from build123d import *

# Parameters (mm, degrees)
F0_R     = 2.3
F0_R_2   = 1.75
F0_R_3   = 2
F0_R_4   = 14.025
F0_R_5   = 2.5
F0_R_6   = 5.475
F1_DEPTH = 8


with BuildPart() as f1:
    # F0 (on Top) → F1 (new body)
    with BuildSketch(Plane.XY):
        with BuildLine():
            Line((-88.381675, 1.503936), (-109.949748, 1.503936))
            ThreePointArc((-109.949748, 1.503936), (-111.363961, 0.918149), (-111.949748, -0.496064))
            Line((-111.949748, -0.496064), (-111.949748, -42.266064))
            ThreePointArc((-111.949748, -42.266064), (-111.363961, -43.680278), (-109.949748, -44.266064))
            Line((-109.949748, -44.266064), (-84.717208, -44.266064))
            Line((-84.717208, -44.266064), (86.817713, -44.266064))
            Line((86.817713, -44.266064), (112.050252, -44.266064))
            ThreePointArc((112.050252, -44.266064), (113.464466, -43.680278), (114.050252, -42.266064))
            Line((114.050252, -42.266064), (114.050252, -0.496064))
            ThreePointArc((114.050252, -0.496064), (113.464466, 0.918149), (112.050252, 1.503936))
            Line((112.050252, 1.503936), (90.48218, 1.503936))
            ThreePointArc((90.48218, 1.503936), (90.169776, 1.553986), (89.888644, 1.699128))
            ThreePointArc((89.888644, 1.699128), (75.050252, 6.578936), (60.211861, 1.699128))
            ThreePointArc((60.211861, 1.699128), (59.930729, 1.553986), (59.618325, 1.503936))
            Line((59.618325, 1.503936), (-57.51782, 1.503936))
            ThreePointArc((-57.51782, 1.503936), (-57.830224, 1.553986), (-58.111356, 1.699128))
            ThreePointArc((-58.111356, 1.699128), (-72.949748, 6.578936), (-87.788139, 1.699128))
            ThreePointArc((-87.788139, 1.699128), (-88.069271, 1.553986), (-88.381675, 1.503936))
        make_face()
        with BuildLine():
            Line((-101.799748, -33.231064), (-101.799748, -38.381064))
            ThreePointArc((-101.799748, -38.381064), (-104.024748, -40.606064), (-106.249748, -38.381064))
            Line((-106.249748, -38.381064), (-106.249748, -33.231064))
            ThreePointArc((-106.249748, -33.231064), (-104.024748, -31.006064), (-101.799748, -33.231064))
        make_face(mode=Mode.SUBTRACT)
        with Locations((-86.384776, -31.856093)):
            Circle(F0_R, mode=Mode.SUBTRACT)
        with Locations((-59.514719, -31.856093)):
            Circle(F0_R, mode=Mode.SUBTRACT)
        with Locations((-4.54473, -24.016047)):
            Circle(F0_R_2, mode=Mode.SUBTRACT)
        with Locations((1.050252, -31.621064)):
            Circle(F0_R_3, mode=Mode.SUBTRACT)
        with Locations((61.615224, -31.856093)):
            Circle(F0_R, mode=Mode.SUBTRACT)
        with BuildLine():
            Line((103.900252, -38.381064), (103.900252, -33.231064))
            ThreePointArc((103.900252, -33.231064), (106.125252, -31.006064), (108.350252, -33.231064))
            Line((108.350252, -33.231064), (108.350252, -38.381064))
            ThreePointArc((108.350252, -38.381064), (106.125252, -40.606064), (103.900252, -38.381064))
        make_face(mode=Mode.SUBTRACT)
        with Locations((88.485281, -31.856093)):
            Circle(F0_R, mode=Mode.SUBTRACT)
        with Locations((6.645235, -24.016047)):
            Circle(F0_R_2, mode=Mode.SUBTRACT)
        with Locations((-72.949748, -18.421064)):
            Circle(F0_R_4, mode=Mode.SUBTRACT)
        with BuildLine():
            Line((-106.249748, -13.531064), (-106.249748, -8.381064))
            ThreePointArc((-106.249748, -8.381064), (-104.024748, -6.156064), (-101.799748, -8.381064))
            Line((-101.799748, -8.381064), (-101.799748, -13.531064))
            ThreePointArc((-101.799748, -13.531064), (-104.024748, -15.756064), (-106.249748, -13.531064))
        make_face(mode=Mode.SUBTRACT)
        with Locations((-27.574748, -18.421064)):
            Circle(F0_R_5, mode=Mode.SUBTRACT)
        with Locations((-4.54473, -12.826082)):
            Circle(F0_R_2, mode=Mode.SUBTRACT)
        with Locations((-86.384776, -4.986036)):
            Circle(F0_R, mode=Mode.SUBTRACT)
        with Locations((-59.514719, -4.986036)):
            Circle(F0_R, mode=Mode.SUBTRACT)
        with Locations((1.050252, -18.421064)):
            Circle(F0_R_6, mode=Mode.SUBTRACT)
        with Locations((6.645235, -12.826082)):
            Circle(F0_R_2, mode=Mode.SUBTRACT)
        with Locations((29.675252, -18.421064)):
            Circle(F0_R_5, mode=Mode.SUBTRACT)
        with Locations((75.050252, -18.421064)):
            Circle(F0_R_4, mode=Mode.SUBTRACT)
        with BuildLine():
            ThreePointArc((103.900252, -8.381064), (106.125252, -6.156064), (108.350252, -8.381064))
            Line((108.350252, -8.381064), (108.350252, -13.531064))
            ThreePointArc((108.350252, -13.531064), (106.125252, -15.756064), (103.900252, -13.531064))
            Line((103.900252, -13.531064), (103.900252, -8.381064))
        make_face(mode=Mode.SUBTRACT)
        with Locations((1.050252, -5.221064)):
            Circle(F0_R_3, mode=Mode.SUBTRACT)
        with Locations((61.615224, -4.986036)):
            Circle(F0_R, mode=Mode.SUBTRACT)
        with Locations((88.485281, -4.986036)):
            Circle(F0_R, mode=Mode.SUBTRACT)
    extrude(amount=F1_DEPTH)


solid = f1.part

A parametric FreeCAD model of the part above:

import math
import FreeCAD as App
import Part
import Sketcher
from FreeCAD import Vector

doc = App.newDocument("Part")
params = doc.addObject("Spreadsheet::Sheet", "Params")
for row, (alias, value) in enumerate([
    ("sketch1_diameter", "4 mm"),
    ("sketch1_diameter2", "5 mm"),
    ("sketch1_radius", "24.999999 mm"),
    ("sketch1_diameter3", "4.6 mm"),
    ("sketch1_diameter4", "3.5 mm"),
    ("pad1_length", "8 mm"),
], start=1):
    params.set(f"A{row}", alias)
    params.set(f"B{row}", "=" + value)
    params.setAlias(f"B{row}", alias)

body = doc.addObject("PartDesign::Body", "Body")

sketch1 = body.newObject("Sketcher::SketchObject", "Sketch")
sketch1.AttachmentSupport = (doc.getObject("XY_Plane"), [""])
sketch1.MapMode = "FlatFace"
sketch1.addGeometry([
    Part.LineSegment(Vector(-88.4, 1.5, 0), Vector(-109.9, 1.5, 0)),
    Part.ArcOfCircle(Part.Circle(Vector(-109.9, -0.5, 0), Vector(0, 0, 1), 2), math.radians(90), math.radians(180)),
    Part.LineSegment(Vector(-111.9, -0.5, 0), Vector(-111.9, -42.3, 0)),
    Part.ArcOfCircle(Part.Circle(Vector(-109.9, -42.3, 0), Vector(0, 0, 1), 2), math.radians(-180), math.radians(-90)),
    Part.LineSegment(Vector(-109.9, -44.3, 0), Vector(112.1, -44.3, 0)),
    Part.ArcOfCircle(Part.Circle(Vector(112.1, -42.3, 0), Vector(0, 0, 1), 2), math.radians(-90), math.radians(0)),
    Part.LineSegment(Vector(114.1, -42.3, 0), Vector(114.1, -0.5, 0)),
    Part.ArcOfCircle(Part.Circle(Vector(112.1, -0.5, 0), Vector(0, 0, 1), 2), math.radians(0), math.radians(90)),
    Part.LineSegment(Vector(112.1, 1.5, 0), Vector(90.5, 1.5, 0)),
    Part.ArcOfCircle(Part.Circle(Vector(90.5, 2.5, 0), Vector(0, 0, 1), 1), math.radians(-126), math.radians(-90)),
    Part.ArcOfCircle(Part.Circle(Vector(75.1, -18.4, 0), Vector(0, 0, 1), 25), math.radians(54), math.radians(126)),
    Part.ArcOfCircle(Part.Circle(Vector(59.6, 2.5, 0), Vector(0, 0, 1), 1), math.radians(-90), math.radians(-54)),
    Part.LineSegment(Vector(59.6, 1.5, 0), Vector(-57.5, 1.5, 0)),
    Part.ArcOfCircle(Part.Circle(Vector(-57.5, 2.5, 0), Vector(0, 0, 1), 1), math.radians(-126), math.radians(-90)),
    Part.ArcOfCircle(Part.Circle(Vector(-72.9, -18.4, 0), Vector(0, 0, 1), 25), math.radians(54), math.radians(126)),
    Part.ArcOfCircle(Part.Circle(Vector(-88.4, 2.5, 0), Vector(0, 0, 1), 1), math.radians(-90), math.radians(-54)),
    Part.ArcOfCircle(Part.Circle(Vector(-104, -33.2, 0), Vector(0, 0, 1), 2.2), math.radians(0), math.radians(180)),
    Part.LineSegment(Vector(-101.8, -33.2, 0), Vector(-101.8, -38.4, 0)),
    Part.ArcOfCircle(Part.Circle(Vector(-104, -38.4, 0), Vector(0, 0, 1), 2.2), math.radians(180), math.radians(360)),
    Part.LineSegment(Vector(-106.2, -38.4, 0), Vector(-106.2, -33.2, 0)),
    Part.Circle(Vector(-86.4, -31.9, 0), Vector(0, 0, 1), 2.3),
    Part.Circle(Vector(-59.5, -31.9, 0), Vector(0, 0, 1), 2.3),
    Part.Circle(Vector(-4.5, -24, 0), Vector(0, 0, 1), 1.8),
    Part.Circle(Vector(1.1, -31.6, 0), Vector(0, 0, 1), 2),
    Part.Circle(Vector(61.6, -31.9, 0), Vector(0, 0, 1), 2.3),
    Part.ArcOfCircle(Part.Circle(Vector(106.1, -38.4, 0), Vector(0, 0, 1), 2.2), math.radians(180), math.radians(360)),
    Part.LineSegment(Vector(103.9, -38.4, 0), Vector(103.9, -33.2, 0)),
    Part.ArcOfCircle(Part.Circle(Vector(106.1, -33.2, 0), Vector(0, 0, 1), 2.2), math.radians(0), math.radians(180)),
    Part.LineSegment(Vector(108.4, -33.2, 0), Vector(108.4, -38.4, 0)),
    Part.Circle(Vector(88.5, -31.9, 0), Vector(0, 0, 1), 2.3),
    Part.Circle(Vector(6.6, -24, 0), Vector(0, 0, 1), 1.8),
    Part.Circle(Vector(-72.9, -18.4, 0), Vector(0, 0, 1), 14),
    Part.Circle(Vector(-27.6, -18.4, 0), Vector(0, 0, 1), 2.5),
    Part.Circle(Vector(-4.5, -12.8, 0), Vector(0, 0, 1), 1.8),
    Part.ArcOfCircle(Part.Circle(Vector(-104, -13.5, 0), Vector(0, 0, 1), 2.2), math.radians(180), math.radians(360)),
    Part.LineSegment(Vector(-106.2, -13.5, 0), Vector(-106.2, -8.4, 0)),
    Part.ArcOfCircle(Part.Circle(Vector(-104, -8.4, 0), Vector(0, 0, 1), 2.2), math.radians(0), math.radians(180)),
    Part.LineSegment(Vector(-101.8, -8.4, 0), Vector(-101.8, -13.5, 0)),
    Part.Circle(Vector(-86.4, -5, 0), Vector(0, 0, 1), 2.3),
    Part.Circle(Vector(-59.5, -5, 0), Vector(0, 0, 1), 2.3),
    Part.Circle(Vector(1.1, -18.4, 0), Vector(0, 0, 1), 5.5),
    Part.Circle(Vector(29.7, -18.4, 0), Vector(0, 0, 1), 2.5),
    Part.Circle(Vector(6.6, -12.8, 0), Vector(0, 0, 1), 1.8),
    Part.Circle(Vector(75.1, -18.4, 0), Vector(0, 0, 1), 14),
    Part.Circle(Vector(1.1, -5.2, 0), Vector(0, 0, 1), 2),
    Part.LineSegment(Vector(103.9, -13.5, 0), Vector(103.9, -8.4, 0)),
    Part.ArcOfCircle(Part.Circle(Vector(106.1, -8.4, 0), Vector(0, 0, 1), 2.2), math.radians(0), math.radians(180)),
    Part.LineSegment(Vector(108.4, -8.4, 0), Vector(108.4, -13.5, 0)),
    Part.ArcOfCircle(Part.Circle(Vector(106.1, -13.5, 0), Vector(0, 0, 1), 2.2), math.radians(180), math.radians(360)),
    Part.Circle(Vector(61.6, -5, 0), Vector(0, 0, 1), 2.3),
    Part.Circle(Vector(88.5, -5, 0), Vector(0, 0, 1), 2.3),
], False)
sketch1.addConstraint([
    Sketcher.Constraint("Tangent", 0, 2, 1, 1),
    Sketcher.Constraint("Tangent", 1, 2, 2, 1),
    Sketcher.Constraint("Tangent", 2, 2, 3, 1),
    Sketcher.Constraint("Tangent", 3, 2, 4, 1),
    Sketcher.Constraint("Tangent", 4, 2, 5, 1),
    Sketcher.Constraint("Tangent", 5, 2, 6, 1),
    Sketcher.Constraint("Tangent", 6, 2, 7, 1),
    Sketcher.Constraint("Tangent", 7, 2, 8, 1),
    Sketcher.Constraint("Coincident", 8, 2, 9, 2),
    Sketcher.Constraint("Tangent", 9, 1, 10, 1),
    Sketcher.Constraint("Tangent", 10, 2, 11, 2),
    Sketcher.Constraint("Coincident", 11, 1, 12, 1),
    Sketcher.Constraint("Coincident", 12, 2, 13, 2),
    Sketcher.Constraint("Tangent", 13, 1, 14, 1),
    Sketcher.Constraint("Tangent", 14, 2, 15, 2),
    Sketcher.Constraint("Coincident", 15, 1, 0, 1),
    Sketcher.Constraint("Tangent", 16, 1, 17, 1),
    Sketcher.Constraint("Tangent", 17, 2, 18, 2),
    Sketcher.Constraint("Tangent", 18, 1, 19, 1),
    Sketcher.Constraint("Tangent", 19, 2, 16, 2),
    Sketcher.Constraint("Tangent", 25, 1, 26, 1),
    Sketcher.Constraint("Tangent", 26, 2, 27, 2),
    Sketcher.Constraint("Tangent", 27, 1, 28, 1),
    Sketcher.Constraint("Tangent", 28, 2, 25, 2),
    Sketcher.Constraint("Tangent", 34, 1, 35, 1),
    Sketcher.Constraint("Tangent", 35, 2, 36, 2),
    Sketcher.Constraint("Tangent", 36, 1, 37, 1),
    Sketcher.Constraint("Tangent", 37, 2, 34, 2),
    Sketcher.Constraint("Tangent", 45, 2, 46, 2),
    Sketcher.Constraint("Tangent", 46, 1, 47, 1),
    Sketcher.Constraint("Tangent", 47, 2, 48, 2),
    Sketcher.Constraint("Tangent", 48, 1, 45, 1),
    Sketcher.Constraint("Horizontal", 0),
    Sketcher.Constraint("Vertical", 2),
    Sketcher.Constraint("Horizontal", 4),
    Sketcher.Constraint("Vertical", 6),
    Sketcher.Constraint("Horizontal", 8),
    Sketcher.Constraint("Horizontal", 12),
    Sketcher.Constraint("Vertical", 17),
    Sketcher.Constraint("Vertical", 19),
    Sketcher.Constraint("Vertical", 26),
    Sketcher.Constraint("Vertical", 28),
    Sketcher.Constraint("Vertical", 35),
    Sketcher.Constraint("Vertical", 37),
    Sketcher.Constraint("Vertical", 45),
    Sketcher.Constraint("Vertical", 47),
    Sketcher.Constraint("Coincident", 31, 3, 14, 3),
    Sketcher.Constraint("Coincident", 43, 3, 10, 3),
    Sketcher.Constraint("Equal", 1, 3),
    Sketcher.Constraint("Equal", 3, 5),
    Sketcher.Constraint("Equal", 5, 7),
    Sketcher.Constraint("Equal", 9, 11),
    Sketcher.Constraint("Equal", 11, 13),
    Sketcher.Constraint("Equal", 10, 14),
    Sketcher.Constraint("Equal", 13, 15),
    Sketcher.Constraint("Equal", 20, 21),
    Sketcher.Constraint("Equal", 7, 23),
    Sketcher.Constraint("Equal", 21, 24),
    Sketcher.Constraint("Equal", 18, 25),
    Sketcher.Constraint("Equal", 24, 29),
    Sketcher.Constraint("Equal", 22, 30),
    Sketcher.Constraint("Equal", 30, 33),
    Sketcher.Constraint("Equal", 27, 34),
    Sketcher.Constraint("Equal", 29, 38),
    Sketcher.Constraint("Equal", 38, 39),
    Sketcher.Constraint("Equal", 32, 41),
    Sketcher.Constraint("Equal", 33, 42),
    Sketcher.Constraint("Equal", 31, 43),
    Sketcher.Constraint("Equal", 23, 44),
    Sketcher.Constraint("Equal", 36, 46),
    Sketcher.Constraint("Equal", 39, 49),
    Sketcher.Constraint("Equal", 49, 50),
    Sketcher.Constraint("Horizontal", 1, 3, 7, 3),
    Sketcher.Constraint("Horizontal", 9, 3, 11, 3),
    Sketcher.Constraint("Horizontal", 10, 3, 14, 3),
    Sketcher.Constraint("Horizontal", 20, 3, 21, 3),
    Sketcher.Constraint("Horizontal", 21, 3, 24, 3),
    Sketcher.Constraint("Horizontal", 18, 3, 25, 3),
    Sketcher.Constraint("Horizontal", 16, 3, 27, 3),
    Sketcher.Constraint("Horizontal", 24, 3, 29, 3),
    Sketcher.Constraint("Horizontal", 22, 3, 30, 3),
    Sketcher.Constraint("Horizontal", 31, 3, 32, 3),
    Sketcher.Constraint("Horizontal", 38, 3, 39, 3),
    Sketcher.Constraint("Horizontal", 32, 3, 40, 3),
    Sketcher.Constraint("Horizontal", 40, 3, 41, 3),
    Sketcher.Constraint("Horizontal", 33, 3, 42, 3),
    Sketcher.Constraint("Horizontal", 36, 3, 46, 3),
    Sketcher.Constraint("Horizontal", 34, 3, 48, 3),
    Sketcher.Constraint("Horizontal", 39, 3, 49, 3),
    Sketcher.Constraint("Horizontal", 49, 3, 50, 3),
    Sketcher.Constraint("Vertical", 22, 3, 33, 3),
    Sketcher.Constraint("Vertical", 18, 3, 34, 3),
    Sketcher.Constraint("Vertical", 20, 3, 38, 3),
    Sketcher.Constraint("Vertical", 21, 3, 39, 3),
    Sketcher.Constraint("Vertical", 23, 3, 40, 3),
    Sketcher.Constraint("Vertical", 30, 3, 42, 3),
    Sketcher.Constraint("Vertical", 40, 3, 44, 3),
    Sketcher.Constraint("Vertical", 27, 3, 46, 3),
    Sketcher.Constraint("Vertical", 24, 3, 49, 3),
    Sketcher.Constraint("Vertical", 29, 3, 50, 3),
    Sketcher.Constraint("Equal", 0, 8),
    Sketcher.Constraint("Equal", 28, 35),
    Sketcher.Constraint("Diameter", 23, 4.0),
    Sketcher.Constraint("Diameter", 32, 5.0),
    Sketcher.Constraint("Radius", 10, 24.999999),
    Sketcher.Constraint("Diameter", 20, 4.6),
    Sketcher.Constraint("Diameter", 22, 3.5),
    Sketcher.Constraint("Diameter", 31, 28.05),
    Sketcher.Constraint("Diameter", 40, 10.95),
    Sketcher.Constraint("DistanceX", 4, 1, 4, 2, 222.0),
    Sketcher.Constraint("Radius", 16, 2.225),
    Sketcher.Constraint("DistanceY", 2, 2, 2, 1, 41.77),
    Sketcher.Constraint("DistanceY", 17, 2, 17, 1, 5.15),
    Sketcher.Constraint("Radius", 9, 0.999993),
    Sketcher.Constraint("DistanceX", 0, 2, 0, 1, 21.568073),
    Sketcher.Constraint("DistanceX", 12, 2, 12, 1, 117.136145),
    Sketcher.Constraint("DistanceX", -1, 1, 7, 3, 112.050252),
    Sketcher.Constraint("DistanceY", -1, 1, 9, 3, 2.503929),
    Sketcher.Constraint("DistanceX", -1, 1, 11, 3, 59.618328),
    Sketcher.Constraint("DistanceX", 15, 3, -1, 1, 88.381672),
    Sketcher.Constraint("DistanceX", 16, 3, -1, 1, 104.024748),
    Sketcher.Constraint("DistanceX", 21, 3, -1, 1, 59.514719),
    Sketcher.Constraint("DistanceX", 22, 3, -1, 1, 4.54473),
    Sketcher.Constraint("DistanceX", -1, 1, 29, 3, 88.485281),
    Sketcher.Constraint("DistanceX", 31, 3, -1, 1, 72.949748),
    Sketcher.Constraint("DistanceX", 12, 2, -1, 1, 57.51782),
    Sketcher.Constraint("DistanceX", -1, 1, 26, 2, 103.900252),
    Sketcher.Constraint("DistanceY", 16, 3, -1, 1, 33.231064),
    Sketcher.Constraint("DistanceX", 20, 3, -1, 1, 86.384776),
    Sketcher.Constraint("DistanceY", 20, 3, -1, 1, 31.856093),
    Sketcher.Constraint("DistanceY", 22, 3, -1, 1, 24.016047),
    Sketcher.Constraint("DistanceX", -1, 1, 23, 3, 1.050252),
    Sketcher.Constraint("DistanceY", 23, 3, -1, 1, 31.621064),
    Sketcher.Constraint("DistanceX", -1, 1, 24, 3, 61.615224),
    Sketcher.Constraint("DistanceX", -1, 1, 30, 3, 6.645235),
    Sketcher.Constraint("DistanceX", 32, 3, -1, 1, 27.574748),
    Sketcher.Constraint("DistanceY", 33, 3, -1, 1, 12.826082),
    Sketcher.Constraint("DistanceY", 34, 3, -1, 1, 13.531064),
    Sketcher.Constraint("DistanceY", 38, 3, -1, 1, 4.986036),
    Sketcher.Constraint("DistanceX", -1, 1, 41, 3, 29.675252),
    Sketcher.Constraint("DistanceY", 44, 3, -1, 1, 5.221064),
])
sketch1.setExpression("Constraints[102]", "Params.sketch1_diameter")
sketch1.setExpression("Constraints[103]", "Params.sketch1_diameter2")
sketch1.setExpression("Constraints[104]", "Params.sketch1_radius")
sketch1.setExpression("Constraints[105]", "Params.sketch1_diameter3")
sketch1.setExpression("Constraints[106]", "Params.sketch1_diameter4")
pad1 = body.newObject("PartDesign::Pad", "Pad")
pad1.Profile = sketch1
pad1.setExpression("Length", "Params.pad1_length")

doc.recompute()
